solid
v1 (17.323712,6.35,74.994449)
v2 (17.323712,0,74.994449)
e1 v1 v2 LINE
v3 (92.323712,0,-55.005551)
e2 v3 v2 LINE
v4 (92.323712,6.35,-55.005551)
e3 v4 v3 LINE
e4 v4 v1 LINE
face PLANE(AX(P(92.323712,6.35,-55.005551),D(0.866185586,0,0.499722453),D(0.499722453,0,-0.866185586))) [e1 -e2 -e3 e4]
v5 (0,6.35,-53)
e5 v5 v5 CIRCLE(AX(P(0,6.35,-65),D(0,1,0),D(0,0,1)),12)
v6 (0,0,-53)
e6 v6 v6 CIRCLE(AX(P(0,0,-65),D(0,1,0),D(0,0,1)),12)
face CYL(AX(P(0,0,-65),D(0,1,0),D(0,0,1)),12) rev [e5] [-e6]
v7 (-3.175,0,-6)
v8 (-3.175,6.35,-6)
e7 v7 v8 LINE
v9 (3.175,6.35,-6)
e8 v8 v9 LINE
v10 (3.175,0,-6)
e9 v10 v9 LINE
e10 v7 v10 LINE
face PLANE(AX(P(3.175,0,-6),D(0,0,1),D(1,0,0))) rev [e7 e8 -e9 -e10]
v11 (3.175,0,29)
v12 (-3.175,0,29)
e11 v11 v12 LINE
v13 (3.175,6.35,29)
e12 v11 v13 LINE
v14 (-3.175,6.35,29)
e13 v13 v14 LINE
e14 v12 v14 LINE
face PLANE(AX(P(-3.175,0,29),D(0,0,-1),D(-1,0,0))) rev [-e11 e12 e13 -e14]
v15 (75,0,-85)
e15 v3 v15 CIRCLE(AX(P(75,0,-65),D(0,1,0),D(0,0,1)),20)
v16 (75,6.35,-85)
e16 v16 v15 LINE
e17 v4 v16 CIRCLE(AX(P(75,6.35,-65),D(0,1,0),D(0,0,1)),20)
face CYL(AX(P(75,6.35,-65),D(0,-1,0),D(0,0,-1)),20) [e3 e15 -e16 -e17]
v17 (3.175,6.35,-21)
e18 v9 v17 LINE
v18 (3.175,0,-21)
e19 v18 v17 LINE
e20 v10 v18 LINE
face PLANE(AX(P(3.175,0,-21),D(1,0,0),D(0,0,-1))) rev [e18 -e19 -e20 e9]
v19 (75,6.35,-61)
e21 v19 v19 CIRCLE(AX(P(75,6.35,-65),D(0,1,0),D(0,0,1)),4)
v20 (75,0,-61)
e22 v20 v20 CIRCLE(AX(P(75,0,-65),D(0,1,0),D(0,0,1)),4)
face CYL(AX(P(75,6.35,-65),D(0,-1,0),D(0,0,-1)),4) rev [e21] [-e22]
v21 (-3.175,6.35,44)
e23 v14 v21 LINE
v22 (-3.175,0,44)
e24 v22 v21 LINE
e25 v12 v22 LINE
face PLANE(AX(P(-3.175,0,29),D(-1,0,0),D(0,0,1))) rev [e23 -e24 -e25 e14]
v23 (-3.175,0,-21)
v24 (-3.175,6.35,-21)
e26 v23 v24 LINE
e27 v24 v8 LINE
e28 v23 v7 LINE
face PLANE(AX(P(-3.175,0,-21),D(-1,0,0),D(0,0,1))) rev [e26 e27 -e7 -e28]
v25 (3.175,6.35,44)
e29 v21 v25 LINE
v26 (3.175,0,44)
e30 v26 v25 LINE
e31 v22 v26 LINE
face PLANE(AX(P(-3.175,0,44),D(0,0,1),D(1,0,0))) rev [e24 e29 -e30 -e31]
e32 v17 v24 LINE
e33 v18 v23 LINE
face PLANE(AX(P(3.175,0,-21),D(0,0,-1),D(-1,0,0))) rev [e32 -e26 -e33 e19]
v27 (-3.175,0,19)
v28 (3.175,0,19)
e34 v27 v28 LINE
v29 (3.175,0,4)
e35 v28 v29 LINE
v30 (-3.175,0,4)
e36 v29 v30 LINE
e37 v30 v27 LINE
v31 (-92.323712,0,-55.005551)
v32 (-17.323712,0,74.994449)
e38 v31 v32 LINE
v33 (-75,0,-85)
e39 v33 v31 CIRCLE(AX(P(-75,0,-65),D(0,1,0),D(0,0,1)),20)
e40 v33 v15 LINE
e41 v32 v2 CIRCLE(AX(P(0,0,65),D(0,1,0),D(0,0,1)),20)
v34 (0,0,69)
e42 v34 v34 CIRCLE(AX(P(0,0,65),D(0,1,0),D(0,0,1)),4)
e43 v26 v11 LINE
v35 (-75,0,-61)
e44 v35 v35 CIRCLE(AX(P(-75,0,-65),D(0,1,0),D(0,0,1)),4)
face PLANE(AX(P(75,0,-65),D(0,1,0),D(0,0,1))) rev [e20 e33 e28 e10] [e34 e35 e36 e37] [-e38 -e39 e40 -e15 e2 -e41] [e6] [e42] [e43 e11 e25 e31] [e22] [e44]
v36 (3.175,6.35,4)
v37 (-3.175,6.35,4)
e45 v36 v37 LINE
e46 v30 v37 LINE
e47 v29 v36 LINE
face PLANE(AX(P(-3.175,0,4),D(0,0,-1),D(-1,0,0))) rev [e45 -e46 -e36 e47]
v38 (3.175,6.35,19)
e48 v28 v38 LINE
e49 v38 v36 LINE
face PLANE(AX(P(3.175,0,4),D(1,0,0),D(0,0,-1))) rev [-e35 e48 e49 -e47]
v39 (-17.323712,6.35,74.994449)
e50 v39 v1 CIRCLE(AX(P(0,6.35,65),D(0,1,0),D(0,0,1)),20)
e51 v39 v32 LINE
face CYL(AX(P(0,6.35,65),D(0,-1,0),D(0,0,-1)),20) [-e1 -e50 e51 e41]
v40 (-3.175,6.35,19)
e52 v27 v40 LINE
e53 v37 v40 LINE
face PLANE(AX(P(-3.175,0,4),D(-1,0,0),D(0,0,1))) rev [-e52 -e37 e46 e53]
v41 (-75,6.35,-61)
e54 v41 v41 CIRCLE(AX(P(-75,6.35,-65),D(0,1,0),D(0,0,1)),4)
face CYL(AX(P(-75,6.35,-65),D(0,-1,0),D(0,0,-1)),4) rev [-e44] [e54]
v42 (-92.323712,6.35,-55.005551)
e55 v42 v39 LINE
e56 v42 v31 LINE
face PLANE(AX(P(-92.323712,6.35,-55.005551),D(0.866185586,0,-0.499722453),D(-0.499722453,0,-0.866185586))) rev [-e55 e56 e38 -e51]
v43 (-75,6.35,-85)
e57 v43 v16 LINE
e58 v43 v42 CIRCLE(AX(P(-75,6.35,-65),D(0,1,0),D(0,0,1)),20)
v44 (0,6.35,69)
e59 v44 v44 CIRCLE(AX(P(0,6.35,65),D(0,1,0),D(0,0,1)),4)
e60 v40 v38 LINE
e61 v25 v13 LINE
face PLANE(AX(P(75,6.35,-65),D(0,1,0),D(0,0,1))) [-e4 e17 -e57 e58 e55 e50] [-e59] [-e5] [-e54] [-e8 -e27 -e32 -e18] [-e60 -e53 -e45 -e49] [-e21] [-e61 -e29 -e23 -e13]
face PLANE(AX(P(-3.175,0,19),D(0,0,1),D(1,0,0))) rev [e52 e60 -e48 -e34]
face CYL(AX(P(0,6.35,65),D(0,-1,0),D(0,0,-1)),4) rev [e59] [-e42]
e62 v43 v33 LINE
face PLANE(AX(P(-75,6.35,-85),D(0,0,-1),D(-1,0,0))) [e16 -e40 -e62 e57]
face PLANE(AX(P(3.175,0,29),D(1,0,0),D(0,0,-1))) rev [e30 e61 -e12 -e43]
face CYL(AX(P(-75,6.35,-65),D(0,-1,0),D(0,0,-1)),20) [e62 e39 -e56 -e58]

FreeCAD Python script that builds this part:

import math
import FreeCAD as App
import Part
import Sketcher

V = App.Vector


def add_polygon(sketch, points):
    """Adds a closed chain of lines whose ends are joined by coincident constraints."""
    first, n = sketch.GeometryCount, len(points)
    for a, b in zip(points, points[1:] + points[:1]):
        sketch.addGeometry(Part.LineSegment(App.Vector(*a, 0), App.Vector(*b, 0)), False)
    for i in range(n):
        sketch.addConstraint(Sketcher.Constraint("Coincident", first + i, 2, first + (i + 1) % n, 1))

doc = App.newDocument("Part")
body = doc.addObject("PartDesign::Body", "Body")

sketch1 = body.newObject("Sketcher::SketchObject", "Sketch")
sketch1.AttachmentSupport = (doc.getObject("XZ_Plane"), [""])
sketch1.MapMode = "FlatFace"
sketch1.addGeometry([
    Part.LineSegment(V(-92.3, -55, 0), V(-17.3, 75, 0)),
    Part.ArcOfCircle(Part.Circle(V(0, 65, 0), V(0, 0, 1), 20), math.radians(30), math.radians(150)),
    Part.LineSegment(V(17.3, 75, 0), V(92.3, -55, 0)),
    Part.ArcOfCircle(Part.Circle(V(75, -65, 0), V(0, 0, 1), 20), math.radians(-90), math.radians(30)),
    Part.LineSegment(V(75, -85, 0), V(-75, -85, 0)),
    Part.ArcOfCircle(Part.Circle(V(-75, -65, 0), V(0, 0, 1), 20), math.radians(150), math.radians(270)),
    Part.Circle(V(0, 65, 0), V(0, 0, 1), 4),
    Part.Circle(V(-75, -65, 0), V(0, 0, 1), 4),
    Part.Circle(V(75, -65, 0), V(0, 0, 1), 4),
], False)
sketch1.addConstraint([
    Sketcher.Constraint("Tangent", 0, 2, 1, 2),
    Sketcher.Constraint("Tangent", 1, 1, 2, 1),
    Sketcher.Constraint("Tangent", 2, 2, 3, 2),
    Sketcher.Constraint("Tangent", 3, 1, 4, 1),
    Sketcher.Constraint("Tangent", 4, 2, 5, 2),
    Sketcher.Constraint("Tangent", 5, 1, 0, 1),
    Sketcher.Constraint("Horizontal", 4),
    Sketcher.Constraint("Coincident", 6, 3, 1, 3),
    Sketcher.Constraint("Coincident", 7, 3, 5, 3),
    Sketcher.Constraint("Coincident", 8, 3, 3, 3),
    Sketcher.Constraint("Equal", 1, 3),
    Sketcher.Constraint("Equal", 3, 5),
    Sketcher.Constraint("Equal", 6, 7),
    Sketcher.Constraint("Equal", 7, 8),
    Sketcher.Constraint("Symmetric", 0, 2, 1, 1, -2),
    Sketcher.Constraint("Diameter", 6, 8.0),
    Sketcher.Constraint("Radius", 1, 20.0),
    Sketcher.Constraint("DistanceX", 4, 2, 4, 1, 150.0),
    Sketcher.Constraint("DistanceY", -1, 1, 1, 3, 65.0),
    Sketcher.Constraint("DistanceY", 3, 3, -1, 1, 65.0),
])
pad1 = body.newObject("PartDesign::Pad", "Pad")
pad1.Profile = sketch1
pad1.Length = 6.35
pad1.Reversed = True

sketch2 = body.newObject("Sketcher::SketchObject", "Sketch001")
sketch2.AttachmentSupport = (doc.getObject("XZ_Plane"), [""])
sketch2.MapMode = "FlatFace"
sketch2.AttachmentOffset = App.Placement(V(0, 0, -6.35), App.Rotation())
add_polygon(sketch2, [(-3, 4), (-3, 19), (3, 19), (3, 4)])
add_polygon(sketch2, [(-3, -21), (-3, -6), (3, -6), (3, -21)])
add_polygon(sketch2, [(-3, 29), (-3, 44), (3, 44), (3, 29)])
sketch2.addConstraint([
    Sketcher.Constraint("Vertical", 0),
    Sketcher.Constraint("Horizontal", 1),
    Sketcher.Constraint("Vertical", 2),
    Sketcher.Constraint("Horizontal", 3),
    Sketcher.Constraint("Vertical", 4),
    Sketcher.Constraint("Horizontal", 5),
    Sketcher.Constraint("Vertical", 6),
    Sketcher.Constraint("Horizontal", 7),
    Sketcher.Constraint("Vertical", 8),
    Sketcher.Constraint("Horizontal", 9),
    Sketcher.Constraint("Vertical", 10),
    Sketcher.Constraint("Horizontal", 11),
    Sketcher.Constraint("Vertical", 3, 2, 4, 2),
    Sketcher.Constraint("Vertical", 2, 2, 5, 2),
    Sketcher.Constraint("Vertical", 7, 2, 8, 2),
    Sketcher.Constraint("Vertical", 6, 2, 9, 2),
    Sketcher.Constraint("Equal", 2, 4),
    Sketcher.Constraint("Equal", 6, 8),
    Sketcher.Constraint("DistanceY", 0, 1, 0, 2, 15.0),
    Sketcher.Constraint("DistanceY", -1, 1, 0, 2, 19.0),
    Sketcher.Constraint("DistanceY", 4, 2, -1, 1, 6.0),
    Sketcher.Constraint("DistanceY", -1, 1, 8, 2, 44.0),
    Sketcher.Constraint("DistanceX", 1, 1, 1, 2, 6.35),
    Sketcher.Constraint("DistanceX", 0, 2, -1, 1, 3.175),
])
pocket1 = body.newObject("PartDesign::Pocket", "Pocket")
pocket1.Profile = sketch2
pocket1.Type = "ThroughAll"
pocket1.Reversed = True

sketch3 = body.newObject("Sketcher::SketchObject", "Sketch002")
sketch3.AttachmentSupport = (doc.getObject("XZ_Plane"), [""])
sketch3.MapMode = "FlatFace"
sketch3.AttachmentOffset = App.Placement(V(0, 0, -6.35), App.Rotation())
sketch3.addGeometry(Part.Circle(V(0, -65, 0), V(0, 0, 1), 12), False)
sketch3.addConstraint([
    Sketcher.Constraint("PointOnObject", 0, 3, -2),
    Sketcher.Constraint("Diameter", 0, 24.0),
    Sketcher.Constraint("DistanceY", 0, 3, -1, 1, 65.0),
])
pocket2 = body.newObject("PartDesign::Pocket", "Pocket001")
pocket2.Profile = sketch3
pocket2.Type = "ThroughAll"
pocket2.Reversed = True

doc.recompute()
